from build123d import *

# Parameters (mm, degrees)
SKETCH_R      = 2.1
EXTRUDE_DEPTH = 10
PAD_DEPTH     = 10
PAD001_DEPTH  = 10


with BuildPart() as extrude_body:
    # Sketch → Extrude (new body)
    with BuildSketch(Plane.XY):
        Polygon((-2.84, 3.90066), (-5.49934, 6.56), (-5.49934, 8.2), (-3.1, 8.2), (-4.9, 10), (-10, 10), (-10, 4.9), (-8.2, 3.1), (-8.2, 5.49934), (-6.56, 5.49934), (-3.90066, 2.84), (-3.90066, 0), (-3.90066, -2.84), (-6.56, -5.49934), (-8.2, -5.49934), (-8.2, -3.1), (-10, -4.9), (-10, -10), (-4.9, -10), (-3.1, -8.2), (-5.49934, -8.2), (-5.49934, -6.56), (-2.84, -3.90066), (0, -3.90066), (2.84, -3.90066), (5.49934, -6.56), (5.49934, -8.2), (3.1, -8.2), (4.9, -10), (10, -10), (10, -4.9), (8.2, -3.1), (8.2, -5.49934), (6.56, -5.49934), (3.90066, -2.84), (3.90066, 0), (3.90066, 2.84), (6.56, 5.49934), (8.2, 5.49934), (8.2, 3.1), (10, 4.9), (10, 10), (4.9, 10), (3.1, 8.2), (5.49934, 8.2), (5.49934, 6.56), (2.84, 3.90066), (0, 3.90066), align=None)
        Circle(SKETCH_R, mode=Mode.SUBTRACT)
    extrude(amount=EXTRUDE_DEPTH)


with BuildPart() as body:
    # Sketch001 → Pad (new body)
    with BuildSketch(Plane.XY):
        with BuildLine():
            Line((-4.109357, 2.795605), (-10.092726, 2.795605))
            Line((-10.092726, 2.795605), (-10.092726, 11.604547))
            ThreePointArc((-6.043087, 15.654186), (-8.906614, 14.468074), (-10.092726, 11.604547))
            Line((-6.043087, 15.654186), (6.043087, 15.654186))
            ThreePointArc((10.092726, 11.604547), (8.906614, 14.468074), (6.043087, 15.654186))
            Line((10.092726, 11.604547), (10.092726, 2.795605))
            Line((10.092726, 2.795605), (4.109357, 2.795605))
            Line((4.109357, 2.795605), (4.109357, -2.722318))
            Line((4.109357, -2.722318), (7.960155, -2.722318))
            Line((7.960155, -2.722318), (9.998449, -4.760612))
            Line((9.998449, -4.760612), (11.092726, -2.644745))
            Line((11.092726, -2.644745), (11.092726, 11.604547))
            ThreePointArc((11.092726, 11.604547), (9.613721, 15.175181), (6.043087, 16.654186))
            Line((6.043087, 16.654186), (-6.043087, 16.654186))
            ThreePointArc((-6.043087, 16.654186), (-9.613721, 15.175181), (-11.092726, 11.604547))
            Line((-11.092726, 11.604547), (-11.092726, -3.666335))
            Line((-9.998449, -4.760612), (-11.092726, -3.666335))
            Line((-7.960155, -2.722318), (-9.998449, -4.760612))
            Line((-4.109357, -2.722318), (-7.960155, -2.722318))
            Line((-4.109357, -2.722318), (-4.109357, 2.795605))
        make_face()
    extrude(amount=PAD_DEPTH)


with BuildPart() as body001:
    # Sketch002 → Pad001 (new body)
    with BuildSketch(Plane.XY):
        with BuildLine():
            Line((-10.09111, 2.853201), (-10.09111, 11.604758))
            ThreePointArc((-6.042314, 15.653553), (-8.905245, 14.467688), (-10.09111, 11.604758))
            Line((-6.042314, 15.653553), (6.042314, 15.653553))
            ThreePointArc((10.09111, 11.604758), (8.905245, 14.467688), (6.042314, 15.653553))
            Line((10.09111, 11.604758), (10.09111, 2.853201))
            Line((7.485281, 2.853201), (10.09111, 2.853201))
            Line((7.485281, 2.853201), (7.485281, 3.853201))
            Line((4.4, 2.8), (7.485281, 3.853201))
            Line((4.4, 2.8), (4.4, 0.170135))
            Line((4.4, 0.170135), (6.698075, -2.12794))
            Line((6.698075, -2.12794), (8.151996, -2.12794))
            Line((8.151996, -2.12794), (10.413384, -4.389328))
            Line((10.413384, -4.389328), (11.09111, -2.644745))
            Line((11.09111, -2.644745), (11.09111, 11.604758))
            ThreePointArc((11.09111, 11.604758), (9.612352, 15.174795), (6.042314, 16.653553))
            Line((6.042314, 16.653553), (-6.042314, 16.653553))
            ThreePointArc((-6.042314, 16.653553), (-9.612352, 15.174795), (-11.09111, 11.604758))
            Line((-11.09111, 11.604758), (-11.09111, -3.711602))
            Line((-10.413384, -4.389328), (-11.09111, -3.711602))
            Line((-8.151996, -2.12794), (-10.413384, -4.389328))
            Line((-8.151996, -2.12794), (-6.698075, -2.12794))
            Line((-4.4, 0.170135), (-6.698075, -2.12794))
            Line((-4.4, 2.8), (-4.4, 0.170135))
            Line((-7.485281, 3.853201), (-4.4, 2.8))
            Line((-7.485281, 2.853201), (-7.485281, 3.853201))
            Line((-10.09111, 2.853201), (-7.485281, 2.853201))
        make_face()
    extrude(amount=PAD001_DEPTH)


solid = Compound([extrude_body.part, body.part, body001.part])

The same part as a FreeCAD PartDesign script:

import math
import FreeCAD as App
import Part
import Sketcher

V = App.Vector
Q = App.Units.Quantity

doc = App.newDocument("Part")
params = doc.addObject("Spreadsheet::Sheet", "Params")
for row, (alias, value) in enumerate([
    ("sketch1_diameter", "4.2 mm"),
    ("sketch1_width", "5.1 mm"),
    ("sketch1_width2", "1.64 mm"),
    ("sketch1_width3", "5.68 mm"),
    ("pad1_length", "10 mm"),
    ("pad2_length", "10 mm"),
    ("sketch3_height", "1 mm"),
    ("pad3_length", "10 mm"),
], start=1):
    params.set(f"A{row}", alias)
    params.set(f"B{row}", "=" + value)
    params.setAlias(f"B{row}", alias)

body = doc.addObject("PartDesign::Body", "Body")

sketch1 = body.newObject("Sketcher::SketchObject", "Sketch")
sketch1.AttachmentSupport = (doc.getObject("XY_Plane"), [""])
sketch1.MapMode = "FlatFace"
sketch1.addGeometry([
    Part.LineSegment(V(-2.8, 3.9, 0), V(-5.5, 6.6, 0)),
    Part.LineSegment(V(-5.5, 6.6, 0), V(-5.5, 8.2, 0)),
    Part.LineSegment(V(-5.5, 8.2, 0), V(-3.1, 8.2, 0)),
    Part.LineSegment(V(-3.1, 8.2, 0), V(-4.9, 10, 0)),
    Part.LineSegment(V(-4.9, 10, 0), V(-10, 10, 0)),
    Part.LineSegment(V(-10, 10, 0), V(-10, 4.9, 0)),
    Part.LineSegment(V(-10, 4.9, 0), V(-8.2, 3.1, 0)),
    Part.LineSegment(V(-8.2, 3.1, 0), V(-8.2, 5.5, 0)),
    Part.LineSegment(V(-8.2, 5.5, 0), V(-6.6, 5.5, 0)),
    Part.LineSegment(V(-6.6, 5.5, 0), V(-3.9, 2.8, 0)),
    Part.LineSegment(V(-3.9, 2.8, 0), V(-3.9, -2.8, 0)),
    Part.LineSegment(V(-3.9, -2.8, 0), V(-6.6, -5.5, 0)),
    Part.LineSegment(V(-6.6, -5.5, 0), V(-8.2, -5.5, 0)),
    Part.LineSegment(V(-8.2, -5.5, 0), V(-8.2, -3.1, 0)),
    Part.LineSegment(V(-8.2, -3.1, 0), V(-10, -4.9, 0)),
    Part.LineSegment(V(-10, -4.9, 0), V(-10, -10, 0)),
    Part.LineSegment(V(-10, -10, 0), V(-4.9, -10, 0)),
    Part.LineSegment(V(-4.9, -10, 0), V(-3.1, -8.2, 0)),
    Part.LineSegment(V(-3.1, -8.2, 0), V(-5.5, -8.2, 0)),
    Part.LineSegment(V(-5.5, -8.2, 0), V(-5.5, -6.6, 0)),
    Part.LineSegment(V(-5.5, -6.6, 0), V(-2.8, -3.9, 0)),
    Part.LineSegment(V(-2.8, -3.9, 0), V(2.8, -3.9, 0)),
    Part.LineSegment(V(2.8, -3.9, 0), V(5.5, -6.6, 0)),
    Part.LineSegment(V(5.5, -6.6, 0), V(5.5, -8.2, 0)),
    Part.LineSegment(V(5.5, -8.2, 0), V(3.1, -8.2, 0)),
    Part.LineSegment(V(3.1, -8.2, 0), V(4.9, -10, 0)),
    Part.LineSegment(V(4.9, -10, 0), V(10, -10, 0)),
    Part.LineSegment(V(10, -10, 0), V(10, -4.9, 0)),
    Part.LineSegment(V(10, -4.9, 0), V(8.2, -3.1, 0)),
    Part.LineSegment(V(8.2, -3.1, 0), V(8.2, -5.5, 0)),
    Part.LineSegment(V(8.2, -5.5, 0), V(6.6, -5.5, 0)),
    Part.LineSegment(V(6.6, -5.5, 0), V(3.9, -2.8, 0)),
    Part.LineSegment(V(3.9, -2.8, 0), V(3.9, 2.8, 0)),
    Part.LineSegment(V(3.9, 2.8, 0), V(6.6, 5.5, 0)),
    Part.LineSegment(V(6.6, 5.5, 0), V(8.2, 5.5, 0)),
    Part.LineSegment(V(8.2, 5.5, 0), V(8.2, 3.1, 0)),
    Part.LineSegment(V(8.2, 3.1, 0), V(10, 4.9, 0)),
    Part.LineSegment(V(10, 4.9, 0), V(10, 10, 0)),
    Part.LineSegment(V(10, 10, 0), V(4.9, 10, 0)),
    Part.LineSegment(V(4.9, 10, 0), V(3.1, 8.2, 0)),
    Part.LineSegment(V(3.1, 8.2, 0), V(5.5, 8.2, 0)),
    Part.LineSegment(V(5.5, 8.2, 0), V(5.5, 6.6, 0)),
    Part.LineSegment(V(5.5, 6.6, 0), V(2.8, 3.9, 0)),
    Part.LineSegment(V(2.8, 3.9, 0), V(-2.8, 3.9, 0)),
    Part.Circle(V(0, 0, 0), V(0, 0, 1), 2.1),
], False)
sketch1.addConstraint([
    Sketcher.Constraint("Coincident", 0, 2, 1, 1),
    Sketcher.Constraint("Coincident", 1, 2, 2, 1),
    Sketcher.Constraint("Coincident", 2, 2, 3, 1),
    Sketcher.Constraint("Coincident", 3, 2, 4, 1),
    Sketcher.Constraint("Coincident", 4, 2, 5, 1),
    Sketcher.Constraint("Coincident", 5, 2, 6, 1),
    Sketcher.Constraint("Coincident", 6, 2, 7, 1),
    Sketcher.Constraint("Coincident", 7, 2, 8, 1),
    Sketcher.Constraint("Coincident", 8, 2, 9, 1),
    Sketcher.Constraint("Coincident", 9, 2, 10, 1),
    Sketcher.Constraint("Coincident", 10, 2, 11, 1),
    Sketcher.Constraint("Coincident", 11, 2, 12, 1),
    Sketcher.Constraint("Coincident", 12, 2, 13, 1),
    Sketcher.Constraint("Coincident", 13, 2, 14, 1),
    Sketcher.Constraint("Coincident", 14, 2, 15, 1),
    Sketcher.Constraint("Coincident", 15, 2, 16, 1),
    Sketcher.Constraint("Coincident", 16, 2, 17, 1),
    Sketcher.Constraint("Coincident", 17, 2, 18, 1),
    Sketcher.Constraint("Coincident", 18, 2, 19, 1),
    Sketcher.Constraint("Coincident", 19, 2, 20, 1),
    Sketcher.Constraint("Coincident", 20, 2, 21, 1),
    Sketcher.Constraint("Coincident", 21, 2, 22, 1),
    Sketcher.Constraint("Coincident", 22, 2, 23, 1),
    Sketcher.Constraint("Coincident", 23, 2, 24, 1),
    Sketcher.Constraint("Coincident", 24, 2, 25, 1),
    Sketcher.Constraint("Coincident", 25, 2, 26, 1),
    Sketcher.Constraint("Coincident", 26, 2, 27, 1),
    Sketcher.Constraint("Coincident", 27, 2, 28, 1),
    Sketcher.Constraint("Coincident", 28, 2, 29, 1),
    Sketcher.Constraint("Coincident", 29, 2, 30, 1),
    Sketcher.Constraint("Coincident", 30, 2, 31, 1),
    Sketcher.Constraint("Coincident", 31, 2, 32, 1),
    Sketcher.Constraint("Coincident", 32, 2, 33, 1),
    Sketcher.Constraint("Coincident", 33, 2, 34, 1),
    Sketcher.Constraint("Coincident", 34, 2, 35, 1),
    Sketcher.Constraint("Coincident", 35, 2, 36, 1),
    Sketcher.Constraint("Coincident", 36, 2, 37, 1),
    Sketcher.Constraint("Coincident", 37, 2, 38, 1),
    Sketcher.Constraint("Coincident", 38, 2, 39, 1),
    Sketcher.Constraint("Coincident", 39, 2, 40, 1),
    Sketcher.Constraint("Coincident", 40, 2, 41, 1),
    Sketcher.Constraint("Coincident", 41, 2, 42, 1),
    Sketcher.Constraint("Coincident", 42, 2, 43, 1),
    Sketcher.Constraint("Coincident", 43, 2, 0, 1),
    Sketcher.Constraint("Vertical", 1),
    Sketcher.Constraint("Horizontal", 2),
    Sketcher.Constraint("Horizontal", 4),
    Sketcher.Constraint("Vertical", 5),
    Sketcher.Constraint("Vertical", 7),
    Sketcher.Constraint("Horizontal", 8),
    Sketcher.Constraint("Vertical", 10),
    Sketcher.Constraint("Horizontal", 12),
    Sketcher.Constraint("Vertical", 13),
    Sketcher.Constraint("Vertical", 15),
    Sketcher.Constraint("Horizontal", 16),
    Sketcher.Constraint("Horizontal", 18),
    Sketcher.Constraint("Vertical", 19),
    Sketcher.Constraint("Horizontal", 21),
    Sketcher.Constraint("Vertical", 23),
    Sketcher.Constraint("Horizontal", 24),
    Sketcher.Constraint("Horizontal", 26),
    Sketcher.Constraint("Vertical", 27),
    Sketcher.Constraint("Vertical", 29),
    Sketcher.Constraint("Horizontal", 30),
    Sketcher.Constraint("Vertical", 32),
    Sketcher.Constraint("Horizontal", 34),
    Sketcher.Constraint("Vertical", 35),
    Sketcher.Constraint("Vertical", 37),
    Sketcher.Constraint("Horizontal", 38),
    Sketcher.Constraint("Horizontal", 40),
    Sketcher.Constraint("Vertical", 41),
    Sketcher.Constraint("Horizontal", 43),
    Sketcher.Constraint("Coincident", 44, 3, -1, 1),
    Sketcher.Constraint("Symmetric", 0, 2, 22, 2, -1, 1),
    Sketcher.Constraint("Symmetric", 2, 2, 24, 2, -1, 1),
    Sketcher.Constraint("Symmetric", 3, 2, 25, 2, -1, 1),
    Sketcher.Constraint("Symmetric", 5, 2, 27, 2, -1, 1),
    Sketcher.Constraint("Symmetric", 6, 2, 28, 2, -1, 1),
    Sketcher.Constraint("Symmetric", 8, 2, 30, 2, -1, 1),
    Sketcher.Constraint("Symmetric", 9, 2, 31, 2, -1, 1),
    Sketcher.Constraint("Symmetric", 11, 2, 33, 2, -1, 1),
    Sketcher.Constraint("Symmetric", 13, 2, 35, 2, -1, 1),
    Sketcher.Constraint("Symmetric", 14, 2, 36, 2, -1, 1),
    Sketcher.Constraint("Symmetric", 16, 2, 38, 2, -1, 1),
    Sketcher.Constraint("Symmetric", 17, 2, 39, 2, -1, 1),
    Sketcher.Constraint("Symmetric", 19, 2, 41, 2, -1, 1),
    Sketcher.Constraint("Symmetric", 20, 2, 42, 2, -1, 1),
    Sketcher.Constraint("Symmetric", 19, 2, 22, 2, -2),
    Sketcher.Constraint("Symmetric", 17, 2, 24, 2, -2),
    Sketcher.Constraint("Symmetric", 16, 2, 25, 2, -2),
    Sketcher.Constraint("Symmetric", 14, 2, 27, 2, -2),
    Sketcher.Constraint("Symmetric", 13, 2, 28, 2, -2),
    Sketcher.Constraint("Symmetric", 11, 2, 30, 2, -2),
    Sketcher.Constraint("Parallel", 0, 3),
    Sketcher.Constraint("Parallel", 3, 6),
    Sketcher.Constraint("Parallel", 6, 9),
    Sketcher.Constraint("Perpendicular", 9, 11),
    Sketcher.Constraint("Parallel", 11, 14),
    Sketcher.Constraint("Parallel", 17, 20),
    Sketcher.Constraint("Perpendicular", 20, 22),
    Sketcher.Constraint("Perpendicular", 31, 33),
    Sketcher.Constraint("Equal", 34, 1),
    Sketcher.Constraint("Equal", 38, 5),
    Sketcher.Constraint("Equal", 40, 7),
    Sketcher.Constraint("Equal", 43, 10),
    Sketcher.Constraint("Equal", 3, 6),
    Sketcher.Constraint("Equal", 0, 9),
    Sketcher.Constraint("Diameter", 44, Q("4.2 mm")),
    Sketcher.Constraint("DistanceX", 4, 2, 4, 1, Q("5.1 mm")),
    Sketcher.Constraint("DistanceY", -1, 1, 3, 2, Q("10 mm")),
    Sketcher.Constraint("DistanceY", 14, 2, 6, 2, Q("8 mm")),
    Sketcher.Constraint("DistanceX", 8, 1, 8, 2, Q("1.64 mm")),
    Sketcher.Constraint("DistanceX", 21, 1, 21, 2, Q("5.68 mm")),
    Sketcher.Constraint("DistanceX", 2, 1, 2, 2, Q("2.39934 mm")),
])
sketch1.setExpression("Constraints[107]", "Params.sketch1_diameter")
sketch1.setExpression("Constraints[108]", "Params.sketch1_width")
sketch1.setExpression("Constraints[111]", "Params.sketch1_width2")
sketch1.setExpression("Constraints[112]", "Params.sketch1_width3")
pad1 = body.newObject("PartDesign::Pad", "Pad")
pad1.Profile = sketch1
pad1.setExpression("Length", "Params.pad1_length")
body2 = doc.addObject("PartDesign::Body", "Body001")

sketch2 = body2.newObject("Sketcher::SketchObject", "Sketch001")
sketch2.AttachmentSupport = (doc.getObject("XY_Plane001"), [""])
sketch2.MapMode = "FlatFace"
sketch2.addGeometry([
    Part.LineSegment(V(-4.1, 2.8, 0), V(-10.1, 2.8, 0)),
    Part.LineSegment(V(-10.1, 2.8, 0), V(-10.1, 11.6, 0)),
    Part.ArcOfCircle(Part.Circle(V(-6, 11.6, 0), V(0, 0, 1), 4), math.radians(90), math.radians(180)),
    Part.LineSegment(V(-6, 15.7, 0), V(6, 15.7, 0)),
    Part.ArcOfCircle(Part.Circle(V(6, 11.6, 0), V(0, 0, 1), 4), math.radians(0), math.radians(90)),
    Part.LineSegment(V(10.1, 11.6, 0), V(10.1, 2.8, 0)),
    Part.LineSegment(V(10.1, 2.8, 0), V(4.1, 2.8, 0)),
    Part.LineSegment(V(4.1, 2.8, 0), V(4.1, -2.7, 0)),
    Part.LineSegment(V(4.1, -2.7, 0), V(8, -2.7, 0)),
    Part.LineSegment(V(8, -2.7, 0), V(10, -4.8, 0)),
    Part.LineSegment(V(10, -4.8, 0), V(11.1, -2.6, 0)),
    Part.LineSegment(V(11.1, -2.6, 0), V(11.1, 11.6, 0)),
    Part.ArcOfCircle(Part.Circle(V(6, 11.6, 0), V(0, 0, 1), 5), math.radians(0), math.radians(90)),
    Part.LineSegment(V(6, 16.7, 0), V(-6, 16.7, 0)),
    Part.ArcOfCircle(Part.Circle(V(-6, 11.6, 0), V(0, 0, 1), 5), math.radians(90), math.radians(180)),
    Part.LineSegment(V(-11.1, 11.6, 0), V(-11.1, -3.7, 0)),
    Part.LineSegment(V(-11.1, -3.7, 0), V(-10, -4.8, 0)),
    Part.LineSegment(V(-10, -4.8, 0), V(-8, -2.7, 0)),
    Part.LineSegment(V(-8, -2.7, 0), V(-4.1, -2.7, 0)),
    Part.LineSegment(V(-4.1, -2.7, 0), V(-4.1, 2.8, 0)),
], False)
sketch2.addConstraint([
    Sketcher.Constraint("Coincident", 0, 2, 1, 1),
    Sketcher.Constraint("Tangent", 1, 2, 2, 2),
    Sketcher.Constraint("Tangent", 2, 1, 3, 1),
    Sketcher.Constraint("Tangent", 3, 2, 4, 2),
    Sketcher.Constraint("Tangent", 4, 1, 5, 1),
    Sketcher.Constraint("Coincident", 5, 2, 6, 1),
    Sketcher.Constraint("Coincident", 6, 2, 7, 1),
    Sketcher.Constraint("Coincident", 7, 2, 8, 1),
    Sketcher.Constraint("Coincident", 8, 2, 9, 1),
    Sketcher.Constraint("Coincident", 9, 2, 10, 1),
    Sketcher.Constraint("Coincident", 10, 2, 11, 1),
    Sketcher.Constraint("Tangent", 11, 2, 12, 1),
    Sketcher.Constraint("Tangent", 12, 2, 13, 1),
    Sketcher.Constraint("Tangent", 13, 2, 14, 1),
    Sketcher.Constraint("Tangent", 14, 2, 15, 1),
    Sketcher.Constraint("Coincident", 15, 2, 16, 1),
    Sketcher.Constraint("Coincident", 16, 2, 17, 1),
    Sketcher.Constraint("Coincident", 17, 2, 18, 1),
    Sketcher.Constraint("Coincident", 18, 2, 19, 1),
    Sketcher.Constraint("Coincident", 19, 2, 0, 1),
    Sketcher.Constraint("Horizontal", 0),
    Sketcher.Constraint("Vertical", 1),
    Sketcher.Constraint("Horizontal", 3),
    Sketcher.Constraint("Vertical", 5),
    Sketcher.Constraint("Horizontal", 6),
    Sketcher.Constraint("Vertical", 7),
    Sketcher.Constraint("Horizontal", 8),
    Sketcher.Constraint("Vertical", 11),
    Sketcher.Constraint("Horizontal", 13),
    Sketcher.Constraint("Vertical", 15),
    Sketcher.Constraint("Horizontal", 18),
    Sketcher.Constraint("Vertical", 19),
    Sketcher.Constraint("Coincident", 12, 3, 4, 3),
    Sketcher.Constraint("Coincident", 14, 3, 2, 3),
    Sketcher.Constraint("Equal", 2, 4),
    Sketcher.Constraint("Symmetric", 0, 2, 5, 2, -2),
    Sketcher.Constraint("Symmetric", 9, 2, 16, 2, -2),
    Sketcher.Constraint("Symmetric", 8, 2, 17, 2, -2),
    Sketcher.Constraint("Parallel", 9, 16),
    Sketcher.Constraint("Perpendicular", 16, 17),
    Sketcher.Constraint("Equal", 0, 6),
    Sketcher.Constraint("DistanceX", 5, 2, 10, 2, Q("1 mm")),
    Sketcher.Constraint("Radius", 2, Q("4.04964 mm")),
    Sketcher.Constraint("DistanceX", 8, 1, 8, 2, Q("3.850798 mm")),
    Sketcher.Constraint("DistanceX", 0, 2, 0, 1, Q("5.983369 mm")),
    Sketcher.Constraint("Distance", 16, Q("1.547541 mm")),
    Sketcher.Constraint("DistanceX", 3, 1, 3, 2, Q("12.086174 mm")),
    Sketcher.Constraint("DistanceY", 1, 1, 1, 2, Q("8.808942 mm")),
    Sketcher.Constraint("DistanceY", 7, 2, 7, 1, Q("5.517923 mm")),
    Sketcher.Constraint("DistanceY", 11, 1, 11, 2, Q("14.249292 mm")),
    Sketcher.Constraint("DistanceY", 7, 2, -1, 1, Q("2.722318 mm")),
])
pad2 = body2.newObject("PartDesign::Pad", "Pad001")
pad2.Profile = sketch2
pad2.setExpression("Length", "Params.pad2_length")
body3 = doc.addObject("PartDesign::Body", "Body002")

sketch3 = body3.newObject("Sketcher::SketchObject", "Sketch002")
sketch3.AttachmentSupport = (doc.getObject("XY_Plane002"), [""])
sketch3.MapMode = "FlatFace"
sketch3.addGeometry([
    Part.LineSegment(V(-10.1, 2.9, 0), V(-10.1, 11.6, 0)),
    Part.ArcOfCircle(Part.Circle(V(-6, 11.6, 0), V(0, 0, 1), 4), math.radians(90), math.radians(180)),
    Part.LineSegment(V(-6, 15.7, 0), V(6, 15.7, 0)),
    Part.ArcOfCircle(Part.Circle(V(6, 11.6, 0), V(0, 0, 1), 4), math.radians(0), math.radians(90)),
    Part.LineSegment(V(10.1, 11.6, 0), V(10.1, 2.9, 0)),
    Part.LineSegment(V(10.1, 2.9, 0), V(7.5, 2.9, 0)),
    Part.LineSegment(V(7.5, 2.9, 0), V(7.5, 3.9, 0)),
    Part.LineSegment(V(7.5, 3.9, 0), V(4.4, 2.8, 0)),
    Part.LineSegment(V(4.4, 2.8, 0), V(4.4, 0.2, 0)),
    Part.LineSegment(V(4.4, 0.2, 0), V(6.7, -2.1, 0)),
    Part.LineSegment(V(6.7, -2.1, 0), V(8.2, -2.1, 0)),
    Part.LineSegment(V(8.2, -2.1, 0), V(10.4, -4.4, 0)),
    Part.LineSegment(V(10.4, -4.4, 0), V(11.1, -2.6, 0)),
    Part.LineSegment(V(11.1, -2.6, 0), V(11.1, 11.6, 0)),
    Part.ArcOfCircle(Part.Circle(V(6, 11.6, 0), V(0, 0, 1), 5), math.radians(0), math.radians(90)),
    Part.LineSegment(V(6, 16.7, 0), V(-6, 16.7, 0)),
    Part.ArcOfCircle(Part.Circle(V(-6, 11.6, 0), V(0, 0, 1), 5), math.radians(90), math.radians(180)),
    Part.LineSegment(V(-11.1, 11.6, 0), V(-11.1, -3.7, 0)),
    Part.LineSegment(V(-11.1, -3.7, 0), V(-10.4, -4.4, 0)),
    Part.LineSegment(V(-10.4, -4.4, 0), V(-8.2, -2.1, 0)),
    Part.LineSegment(V(-8.2, -2.1, 0), V(-6.7, -2.1, 0)),
    Part.LineSegment(V(-6.7, -2.1, 0), V(-4.4, 0.2, 0)),
    Part.LineSegment(V(-4.4, 0.2, 0), V(-4.4, 2.8, 0)),
    Part.LineSegment(V(-4.4, 2.8, 0), V(-7.5, 3.9, 0)),
    Part.LineSegment(V(-7.5, 3.9, 0), V(-7.5, 2.9, 0)),
    Part.LineSegment(V(-7.5, 2.9, 0), V(-10.1, 2.9, 0)),
], False)
sketch3.addConstraint([
    Sketcher.Constraint("Tangent", 0, 2, 1, 2),
    Sketcher.Constraint("Tangent", 1, 1, 2, 1),
    Sketcher.Constraint("Tangent", 2, 2, 3, 2),
    Sketcher.Constraint("Tangent", 3, 1, 4, 1),
    Sketcher.Constraint("Coincident", 4, 2, 5, 1),
    Sketcher.Constraint("Coincident", 5, 2, 6, 1),
    Sketcher.Constraint("Coincident", 6, 2, 7, 1),
    Sketcher.Constraint("Coincident", 7, 2, 8, 1),
    Sketcher.Constraint("Coincident", 8, 2, 9, 1),
    Sketcher.Constraint("Coincident", 9, 2, 10, 1),
    Sketcher.Constraint("Coincident", 10, 2, 11, 1),
    Sketcher.Constraint("Coincident", 11, 2, 12, 1),
    Sketcher.Constraint("Coincident", 12, 2, 13, 1),
    Sketcher.Constraint("Tangent", 13, 2, 14, 1),
    Sketcher.Constraint("Tangent", 14, 2, 15, 1),
    Sketcher.Constraint("Tangent", 15, 2, 16, 1),
    Sketcher.Constraint("Tangent", 16, 2, 17, 1),
    Sketcher.Constraint("Coincident", 17, 2, 18, 1),
    Sketcher.Constraint("Coincident", 18, 2, 19, 1),
    Sketcher.Constraint("Coincident", 19, 2, 20, 1),
    Sketcher.Constraint("Coincident", 20, 2, 21, 1),
    Sketcher.Constraint("Coincident", 21, 2, 22, 1),
    Sketcher.Constraint("Coincident", 22, 2, 23, 1),
    Sketcher.Constraint("Coincident", 23, 2, 24, 1),
    Sketcher.Constraint("Coincident", 24, 2, 25, 1),
    Sketcher.Constraint("Coincident", 25, 2, 0, 1),
    Sketcher.Constraint("Vertical", 0),
    Sketcher.Constraint("Horizontal", 2),
    Sketcher.Constraint("Vertical", 4),
    Sketcher.Constraint("Horizontal", 5),
    Sketcher.Constraint("Vertical", 6),
    Sketcher.Constraint("Vertical", 8),
    Sketcher.Constraint("Horizontal", 10),
    Sketcher.Constraint("Vertical", 13),
    Sketcher.Constraint("Horizontal", 15),
    Sketcher.Constraint("Vertical", 17),
    Sketcher.Constraint("Horizontal", 20),
    Sketcher.Constraint("Vertical", 22),
    Sketcher.Constraint("Vertical", 24),
    Sketcher.Constraint("Horizontal", 25),
    Sketcher.Constraint("Coincident", 14, 3, 3, 3),
    Sketcher.Constraint("Coincident", 16, 3, 1, 3),
    Sketcher.Constraint("Equal", 1, 3),
    Sketcher.Constraint("Symmetric", 11, 2, 18, 2, -2),
    Sketcher.Constraint("Symmetric", 10, 2, 19, 2, -2),
    Sketcher.Constraint("Symmetric", 8, 2, 21, 2, -2),
    Sketcher.Constraint("Symmetric", 6, 2, 23, 2, -2),
    Sketcher.Constraint("Symmetric", 4, 2, 25, 2, -2),
    Sketcher.Constraint("Parallel", 9, 11),
    Sketcher.Constraint("Parallel", 11, 18),
    Sketcher.Constraint("Perpendicular", 18, 19),
    Sketcher.Constraint("Parallel", 19, 21),
    Sketcher.Constraint("Horizontal", 7, 2, 22, 2),
    Sketcher.Constraint("DistanceY", 6, 1, 6, 2, Q("1 mm")),
    Sketcher.Constraint("DistanceX", 4, 2, 12, 2, Q("1 mm")),
    Sketcher.Constraint("DistanceX", -1, 1, 7, 2, Q("4.4 mm")),
    Sketcher.Constraint("DistanceY", -1, 1, 7, 2, Q("2.8 mm")),
    Sketcher.Constraint("Radius", 1, Q("4.048796 mm")),
    Sketcher.Constraint("Distance", 12, Q("1.871599 mm")),
    Sketcher.Constraint("DistanceX", 5, 2, 5, 1, Q("2.605829 mm")),
    Sketcher.Constraint("DistanceX", 10, 1, 10, 2, Q("1.453921 mm")),
    Sketcher.Constraint("DistanceY", 17, 2, 17, 1, Q("15.31636 mm")),
    Sketcher.Constraint("DistanceY", -1, 1, 4, 2, Q("2.853201 mm")),
    Sketcher.Constraint("DistanceY", 19, 2, 0, 2, Q("13.732698 mm")),
    Sketcher.Constraint("Distance", 7, Q("3.260091 mm")),
    Sketcher.Constraint("Distance", 9, Q("3.249969 mm")),
    Sketcher.Constraint("DistanceY", 0, 1, 0, 2, Q("8.751557 mm")),
])
sketch3.setExpression("Constraints[53]", "Params.sketch3_height")
pad3 = body3.newObject("PartDesign::Pad", "Pad002")
pad3.Profile = sketch3
pad3.setExpression("Length", "Params.pad3_length")

doc.recompute()
